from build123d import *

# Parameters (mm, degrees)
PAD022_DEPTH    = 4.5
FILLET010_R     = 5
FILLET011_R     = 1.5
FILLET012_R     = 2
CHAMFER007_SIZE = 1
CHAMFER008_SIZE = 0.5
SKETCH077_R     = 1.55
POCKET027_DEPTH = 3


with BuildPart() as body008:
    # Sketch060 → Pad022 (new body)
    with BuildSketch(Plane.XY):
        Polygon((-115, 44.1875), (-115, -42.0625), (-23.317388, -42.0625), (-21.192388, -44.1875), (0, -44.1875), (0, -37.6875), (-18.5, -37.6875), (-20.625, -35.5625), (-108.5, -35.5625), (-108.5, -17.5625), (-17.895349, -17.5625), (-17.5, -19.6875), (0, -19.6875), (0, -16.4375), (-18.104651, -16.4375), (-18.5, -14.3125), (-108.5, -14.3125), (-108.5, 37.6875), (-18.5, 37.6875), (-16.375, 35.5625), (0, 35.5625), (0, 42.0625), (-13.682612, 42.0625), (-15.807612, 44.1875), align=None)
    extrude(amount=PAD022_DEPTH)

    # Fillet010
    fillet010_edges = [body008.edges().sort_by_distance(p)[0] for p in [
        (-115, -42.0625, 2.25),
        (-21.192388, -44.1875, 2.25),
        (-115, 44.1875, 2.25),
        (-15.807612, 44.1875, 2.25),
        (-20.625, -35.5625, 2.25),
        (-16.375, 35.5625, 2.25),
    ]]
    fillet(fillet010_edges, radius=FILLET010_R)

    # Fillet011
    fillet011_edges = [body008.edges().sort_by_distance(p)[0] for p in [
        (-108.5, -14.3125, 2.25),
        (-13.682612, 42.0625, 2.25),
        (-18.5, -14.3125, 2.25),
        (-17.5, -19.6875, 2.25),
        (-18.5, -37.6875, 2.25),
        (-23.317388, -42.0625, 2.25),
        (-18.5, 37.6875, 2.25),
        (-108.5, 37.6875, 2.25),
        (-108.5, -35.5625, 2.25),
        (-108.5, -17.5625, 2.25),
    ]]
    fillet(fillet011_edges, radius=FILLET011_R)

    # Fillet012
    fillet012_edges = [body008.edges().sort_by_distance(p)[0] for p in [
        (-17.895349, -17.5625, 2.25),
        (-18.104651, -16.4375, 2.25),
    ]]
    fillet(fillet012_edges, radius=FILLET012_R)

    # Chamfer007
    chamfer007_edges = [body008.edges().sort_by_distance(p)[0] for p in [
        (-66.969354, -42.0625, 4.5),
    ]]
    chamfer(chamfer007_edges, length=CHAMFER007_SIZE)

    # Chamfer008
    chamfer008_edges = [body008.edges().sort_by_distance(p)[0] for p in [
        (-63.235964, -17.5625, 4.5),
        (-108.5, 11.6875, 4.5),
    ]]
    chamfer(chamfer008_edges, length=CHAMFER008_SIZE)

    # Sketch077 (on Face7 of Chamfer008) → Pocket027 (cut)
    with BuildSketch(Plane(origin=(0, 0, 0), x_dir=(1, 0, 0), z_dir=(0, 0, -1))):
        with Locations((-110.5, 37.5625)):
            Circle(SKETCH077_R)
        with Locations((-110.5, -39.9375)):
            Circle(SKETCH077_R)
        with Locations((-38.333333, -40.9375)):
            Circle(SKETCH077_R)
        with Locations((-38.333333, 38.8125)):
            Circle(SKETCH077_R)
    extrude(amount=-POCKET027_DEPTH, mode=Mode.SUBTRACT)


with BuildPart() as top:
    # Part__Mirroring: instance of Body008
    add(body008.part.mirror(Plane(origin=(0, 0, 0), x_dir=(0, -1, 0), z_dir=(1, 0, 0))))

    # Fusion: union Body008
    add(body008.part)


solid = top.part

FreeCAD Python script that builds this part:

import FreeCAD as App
import Part
import Sketcher
Q = App.Units.Quantity


def edges_at(feature, points):
    """Names of the edges that pass closest to the given points."""
    edges = feature.Shape.Edges
    near = lambda p: min(range(len(edges)), key=lambda i: edges[i].distToShape(Part.Vertex(*p))[0])
    return sorted({f"Edge{near(p) + 1}" for p in points})


def add_polygon(sketch, points):
    """Adds a closed chain of lines whose ends are joined by coincident constraints."""
    first, n = sketch.GeometryCount, len(points)
    for a, b in zip(points, points[1:] + points[:1]):
        sketch.addGeometry(Part.LineSegment(App.Vector(*a, 0), App.Vector(*b, 0)), False)
    for i in range(n):
        sketch.addConstraint(Sketcher.Constraint("Coincident", first + i, 2, first + (i + 1) % n, 1))

doc = App.newDocument("Part")
body = doc.addObject("PartDesign::Body", "Body")

sketch1 = body.newObject("Sketcher::SketchObject", "Sketch")
sketch1.AttachmentSupport = (doc.getObject("XY_Plane"), [""])
sketch1.MapMode = "FlatFace"
add_polygon(sketch1, [(-115, 44.2), (-115, -42.1), (-23.3, -42.1), (-21.2, -44.2), (0, -44.2), (0, -37.7), (-18.5, -37.7), (-20.6, -35.6), (-108.5, -35.6), (-108.5, -17.6), (-17.9, -17.6), (-17.5, -19.7), (0, -19.7), (0, -16.4), (-18.1, -16.4), (-18.5, -14.3), (-108.5, -14.3), (-108.5, 37.7), (-18.5, 37.7), (-16.4, 35.6), (0, 35.6), (0, 42.1), (-13.7, 42.1), (-15.8, 44.2)])
sketch1.addConstraint(Sketcher.Constraint("Vertical", 0))
sketch1.addConstraint(Sketcher.Constraint("Horizontal", 1))
sketch1.addConstraint(Sketcher.Constraint("Horizontal", 3))
sketch1.addConstraint(Sketcher.Constraint("Vertical", 4))
sketch1.addConstraint(Sketcher.Constraint("Horizontal", 5))
sketch1.addConstraint(Sketcher.Constraint("Horizontal", 7))
sketch1.addConstraint(Sketcher.Constraint("Vertical", 8))
sketch1.addConstraint(Sketcher.Constraint("Horizontal", 9))
sketch1.addConstraint(Sketcher.Constraint("Horizontal", 11))
sketch1.addConstraint(Sketcher.Constraint("Vertical", 12))
sketch1.addConstraint(Sketcher.Constraint("Horizontal", 13))
sketch1.addConstraint(Sketcher.Constraint("Horizontal", 15))
sketch1.addConstraint(Sketcher.Constraint("Vertical", 16))
sketch1.addConstraint(Sketcher.Constraint("Horizontal", 17))
sketch1.addConstraint(Sketcher.Constraint("Horizontal", 19))
sketch1.addConstraint(Sketcher.Constraint("Vertical", 20))
sketch1.addConstraint(Sketcher.Constraint("Horizontal", 21))
sketch1.addConstraint(Sketcher.Constraint("Horizontal", 23))
sketch1.addConstraint(Sketcher.Constraint("Symmetric", 5, 2, 17, 2, -1))
sketch1.addConstraint(Sketcher.Constraint("PointOnObject", 3, 2, -2))
sketch1.addConstraint(Sketcher.Constraint("PointOnObject", 11, 2, -2))
sketch1.addConstraint(Sketcher.Constraint("PointOnObject", 19, 2, -2))
sketch1.addConstraint(Sketcher.Constraint("Parallel", 2, 6))
sketch1.addConstraint(Sketcher.Constraint("Parallel", 10, 14))
sketch1.addConstraint(Sketcher.Constraint("Parallel", 6, 18))
sketch1.addConstraint(Sketcher.Constraint("Parallel", 18, 22))
sketch1.addConstraint(Sketcher.Constraint("Vertical", 5, 2, 14, 2))
sketch1.addConstraint(Sketcher.Constraint("Vertical", 8, 2, 15, 2))
sketch1.addConstraint(Sketcher.Constraint("Equal", 4, 20))
sketch1.addConstraint(Sketcher.Constraint("Equal", 2, 6))
sketch1.addConstraint(Sketcher.Constraint("Equal", 10, 14))
sketch1.addConstraint(Sketcher.Constraint("Equal", 6, 18))
sketch1.addConstraint(Sketcher.Constraint("Equal", 18, 22))
sketch1.addConstraint(Sketcher.Constraint("DistanceX", 15, 2, 15, 1, 90.0))
sketch1.addConstraint(Sketcher.Constraint("DistanceY", 8, 1, 8, 2, 18.0))
sketch1.addConstraint(Sketcher.Constraint("DistanceY", 16, 1, 16, 2, 52.0))
sketch1.addConstraint(Sketcher.Constraint("Angle", 2, Q("-45 deg")))
sketch1.addConstraint(Sketcher.Constraint("DistanceX", 5, 2, 5, 1, 18.5))
sketch1.addConstraint(Sketcher.Constraint("DistanceX", 11, 1, 11, 2, 17.5))
sketch1.addConstraint(Sketcher.Constraint("DistanceY", 4, 1, 4, 2, 6.5))
sketch1.addConstraint(Sketcher.Constraint("DistanceX", 0, 2, -1, 1, 115.0))
sketch1.addConstraint(Sketcher.Constraint("DistanceY", 5, 2, 10, 2, 18.0))
sketch1.addConstraint(Sketcher.Constraint("DistanceY", 0, 2, 0, 1, 86.25))
sketch1.addConstraint(Sketcher.Constraint("DistanceX", 7, 2, 7, 1, 87.875))
sketch1.addConstraint(Sketcher.Constraint("DistanceX", 3, 1, 3, 2, 21.192388))
sketch1.addConstraint(Sketcher.Constraint("DistanceX", 9, 1, 9, 2, 90.604651))
sketch1.addConstraint(Sketcher.Constraint("DistanceX", 21, 2, 21, 1, 13.682612))
pad1 = body.newObject("PartDesign::Pad", "Pad")
pad1.Profile = sketch1
pad1.Length = 4.5
doc.recompute()

fillet = body.newObject("PartDesign::Fillet", "Fillet")
fillet.Base = (pad1, edges_at(pad1, [
    (-115, -42.062, 2.25),
    (-21.192, -44.188, 2.25),
    (-115, 44.188, 2.25),
    (-15.808, 44.188, 2.25),
    (-20.625, -35.562, 2.25),
    (-16.375, 35.562, 2.25),
]))
fillet.Radius = 5
doc.recompute()

fillet2 = body.newObject("PartDesign::Fillet", "Fillet001")
fillet2.Base = (fillet, edges_at(fillet, [
    (-108.5, -14.312, 2.25),
    (-13.683, 42.062, 2.25),
    (-18.5, -14.312, 2.25),
    (-17.5, -19.688, 2.25),
    (-18.5, -37.688, 2.25),
    (-23.317, -42.062, 2.25),
    (-18.5, 37.688, 2.25),
    (-108.5, 37.688, 2.25),
    (-108.5, -35.562, 2.25),
    (-108.5, -17.562, 2.25),
]))
fillet2.Radius = 1.5
doc.recompute()

fillet3 = body.newObject("PartDesign::Fillet", "Fillet002")
fillet3.Base = (fillet2, edges_at(fillet2, [(-17.895, -17.562, 2.25), (-18.105, -16.438, 2.25)]))
fillet3.Radius = 2
doc.recompute()

chamfer = body.newObject("PartDesign::Chamfer", "Chamfer")
chamfer.Base = (fillet3, edges_at(fillet3, [(-66.969, -42.062, 4.5)]))
chamfer.Size = 1
doc.recompute()

chamfer2 = body.newObject("PartDesign::Chamfer", "Chamfer001")
chamfer2.Base = (chamfer, edges_at(chamfer, [(-63.236, -17.562, 4.5), (-108.5, 11.688, 4.5)]))
chamfer2.Size = 0.5

sketch2 = body.newObject("Sketcher::SketchObject", "Sketch001")
sketch2.AttachmentSupport = (doc.getObject("XY_Plane"), [""])
sketch2.MapMode = "FlatFace"
sketch2.addGeometry(Part.Circle(App.Vector(-110.5, -37.6, 0), App.Vector(0, 0, 1), 1.6), False)
sketch2.addGeometry(Part.Circle(App.Vector(-110.5, 39.9, 0), App.Vector(0, 0, 1), 1.6), False)
sketch2.addGeometry(Part.Circle(App.Vector(-38.3, 40.9, 0), App.Vector(0, 0, 1), 1.6), False)
sketch2.addGeometry(Part.Circle(App.Vector(-38.3, -38.8, 0), App.Vector(0, 0, 1), 1.6), False)
sketch2.addConstraint(Sketcher.Constraint("Equal", 0, 1))
sketch2.addConstraint(Sketcher.Constraint("Equal", 1, 2))
sketch2.addConstraint(Sketcher.Constraint("Equal", 2, 3))
sketch2.addConstraint(Sketcher.Constraint("Vertical", 0, 3, 1, 3))
sketch2.addConstraint(Sketcher.Constraint("Vertical", 2, 3, 3, 3))
sketch2.addConstraint(Sketcher.Constraint("Diameter", 0, 3.1))
sketch2.addConstraint(Sketcher.Constraint("DistanceY", 1, 3, 2, 3, 1.0))
sketch2.addConstraint(Sketcher.Constraint("DistanceX", 0, 3, -1, 1, 110.5))
sketch2.addConstraint(Sketcher.Constraint("DistanceY", 0, 3, 1, 3, 77.5))
sketch2.addConstraint(Sketcher.Constraint("DistanceY", 3, 3, 0, 3, 1.25))
sketch2.addConstraint(Sketcher.Constraint("DistanceY", 0, 3, -1, 1, 37.5625))
sketch2.addConstraint(Sketcher.Constraint("DistanceX", 2, 3, -1, 1, 38.333333))
pocket1 = body.newObject("PartDesign::Pocket", "Pocket")
pocket1.Profile = sketch2
pocket1.Length = 3
pocket1.Reversed = True
body2 = doc.addObject("PartDesign::Body", "Body001")
doc.recompute()

mirroring = doc.addObject("Part::Mirroring", "Mirroring")
mirroring.Source = body
mirroring.Base = App.Vector(0, 0, 0)
mirroring.Normal = App.Vector(1, 0, 0)
body2.BaseFeature = mirroring
doc.recompute()

boolean = body2.newObject("PartDesign::Boolean", "Boolean")
boolean.Type = "Fuse"
boolean.addObjects([body])
mirroring.Visibility = False

doc.recompute()
